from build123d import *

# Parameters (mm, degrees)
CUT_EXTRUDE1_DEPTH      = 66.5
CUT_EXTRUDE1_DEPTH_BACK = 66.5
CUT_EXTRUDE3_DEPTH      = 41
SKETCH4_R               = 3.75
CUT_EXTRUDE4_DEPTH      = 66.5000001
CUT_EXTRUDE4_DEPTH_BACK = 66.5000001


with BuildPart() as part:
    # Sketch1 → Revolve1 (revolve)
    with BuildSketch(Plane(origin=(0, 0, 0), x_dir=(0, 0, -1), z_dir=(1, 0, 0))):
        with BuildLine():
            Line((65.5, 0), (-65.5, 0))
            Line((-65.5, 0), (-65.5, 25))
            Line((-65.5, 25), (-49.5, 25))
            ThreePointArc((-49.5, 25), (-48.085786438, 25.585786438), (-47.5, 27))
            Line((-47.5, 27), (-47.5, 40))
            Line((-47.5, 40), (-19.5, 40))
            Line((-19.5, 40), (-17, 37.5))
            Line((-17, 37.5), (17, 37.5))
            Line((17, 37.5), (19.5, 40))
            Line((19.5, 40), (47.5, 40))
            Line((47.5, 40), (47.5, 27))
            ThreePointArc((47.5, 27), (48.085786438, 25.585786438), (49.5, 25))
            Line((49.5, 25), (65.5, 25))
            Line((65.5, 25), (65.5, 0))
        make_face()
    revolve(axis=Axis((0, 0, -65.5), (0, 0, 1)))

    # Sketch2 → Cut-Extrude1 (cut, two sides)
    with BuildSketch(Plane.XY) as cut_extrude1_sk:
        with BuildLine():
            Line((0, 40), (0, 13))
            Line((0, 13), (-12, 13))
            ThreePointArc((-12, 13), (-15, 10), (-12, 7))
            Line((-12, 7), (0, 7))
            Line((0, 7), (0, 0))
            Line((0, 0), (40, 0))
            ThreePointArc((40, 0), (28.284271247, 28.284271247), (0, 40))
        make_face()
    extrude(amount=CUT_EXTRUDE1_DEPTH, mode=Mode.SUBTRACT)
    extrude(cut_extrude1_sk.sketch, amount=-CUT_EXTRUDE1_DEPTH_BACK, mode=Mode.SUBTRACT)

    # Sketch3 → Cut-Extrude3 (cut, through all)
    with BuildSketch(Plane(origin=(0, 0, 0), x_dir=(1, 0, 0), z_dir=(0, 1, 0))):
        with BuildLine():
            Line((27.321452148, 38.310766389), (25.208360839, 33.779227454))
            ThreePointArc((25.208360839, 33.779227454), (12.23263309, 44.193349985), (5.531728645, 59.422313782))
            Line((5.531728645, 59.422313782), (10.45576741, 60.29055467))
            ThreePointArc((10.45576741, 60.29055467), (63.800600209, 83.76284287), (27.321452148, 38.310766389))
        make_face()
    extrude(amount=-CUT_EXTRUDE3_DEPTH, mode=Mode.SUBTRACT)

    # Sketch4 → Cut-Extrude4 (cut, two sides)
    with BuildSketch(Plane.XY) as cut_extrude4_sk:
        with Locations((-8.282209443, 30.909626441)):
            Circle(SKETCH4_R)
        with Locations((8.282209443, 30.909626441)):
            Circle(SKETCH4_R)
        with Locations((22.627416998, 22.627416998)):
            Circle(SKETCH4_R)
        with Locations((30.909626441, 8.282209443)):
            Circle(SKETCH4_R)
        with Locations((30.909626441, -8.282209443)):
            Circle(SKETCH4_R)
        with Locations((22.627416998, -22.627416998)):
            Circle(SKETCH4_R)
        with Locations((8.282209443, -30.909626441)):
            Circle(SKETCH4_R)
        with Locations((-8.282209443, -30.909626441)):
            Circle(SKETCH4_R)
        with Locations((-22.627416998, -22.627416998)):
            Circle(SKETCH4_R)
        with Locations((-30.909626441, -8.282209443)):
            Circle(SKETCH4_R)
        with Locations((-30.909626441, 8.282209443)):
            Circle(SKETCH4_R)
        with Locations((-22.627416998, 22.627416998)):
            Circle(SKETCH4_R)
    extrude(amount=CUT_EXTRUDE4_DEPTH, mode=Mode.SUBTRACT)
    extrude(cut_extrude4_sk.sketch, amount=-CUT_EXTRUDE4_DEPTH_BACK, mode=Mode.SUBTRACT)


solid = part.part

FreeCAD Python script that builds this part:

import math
import FreeCAD as App
import Part
import Sketcher
from FreeCAD import Vector
Q = App.Units.Quantity

doc = App.newDocument("Part")
params = doc.addObject("Spreadsheet::Sheet", "Params")
for row, (alias, value) in enumerate([
    ("sketch1_radius", "2 mm"),
    ("sketch1_width", "25 mm"),
    ("sketch1_width2", "13 mm"),
    ("sketch1_height", "131 mm"),
    ("sketch1_height2", "16 mm"),
    ("revolution_angle", "360 deg"),
    ("sketch2_radius", "3 mm"),
    ("sketch2_radius2", "40 mm"),
    ("sketch2_width", "12 mm"),
    ("sketch2_height", "27 mm"),
    ("sketch3_radius", "30 mm"),
    ("sketch3_radius2", "35 mm"),
    ("sketch4_diameter", "7.5 mm"),
], start=1):
    params.set(f"A{row}", alias)
    params.set(f"B{row}", "=" + value)
    params.setAlias(f"B{row}", alias)

body = doc.addObject("PartDesign::Body", "Body")

# Sketch on YZ plane
sketch1 = doc.addObject("Sketcher::SketchObject", "Sketch")
body.addObject(sketch1)
sketch1.AttachmentSupport = (doc.YZ_Plane, [""])
sketch1.MapMode = "FlatFace"
sketch1.addGeometry([
    Part.LineSegment(Vector(0, 65.5, 0), Vector(0, -65.5, 0)),  # 0
    Part.LineSegment(Vector(0, -65.5, 0), Vector(25, -65.5, 0)),  # 1
    Part.LineSegment(Vector(25, -65.5, 0), Vector(25, -49.5, 0)),  # 2
    Part.ArcOfCircle(Part.Circle(Vector(27, -49.5, 0), Vector(0, 0, 1), 2), math.radians(90), math.radians(180)),  # 3
    Part.LineSegment(Vector(27, -47.5, 0), Vector(40, -47.5, 0)),  # 4
    Part.LineSegment(Vector(40, -47.5, 0), Vector(40, -19.5, 0)),  # 5
    Part.LineSegment(Vector(40, -19.5, 0), Vector(37.5, -17, 0)),  # 6
    Part.LineSegment(Vector(37.5, -17, 0), Vector(37.5, 17, 0)),  # 7
    Part.LineSegment(Vector(37.5, 17, 0), Vector(40, 19.5, 0)),  # 8
    Part.LineSegment(Vector(40, 19.5, 0), Vector(40, 47.5, 0)),  # 9
    Part.LineSegment(Vector(40, 47.5, 0), Vector(27, 47.5, 0)),  # 10
    Part.ArcOfCircle(Part.Circle(Vector(27, 49.5, 0), Vector(0, 0, 1), 2), math.radians(-180), math.radians(-90)),  # 11
    Part.LineSegment(Vector(25, 49.5, 0), Vector(25, 65.5, 0)),  # 12
    Part.LineSegment(Vector(25, 65.5, 0), Vector(0, 65.5, 0)),  # 13
], False)
sketch1.addConstraint([
    Sketcher.Constraint("Coincident", 0, 2, 1, 1),
    Sketcher.Constraint("Coincident", 1, 2, 2, 1),
    Sketcher.Constraint("Tangent", 2, 2, 3, 2),
    Sketcher.Constraint("Tangent", 3, 1, 4, 1),
    Sketcher.Constraint("Coincident", 4, 2, 5, 1),
    Sketcher.Constraint("Coincident", 5, 2, 6, 1),
    Sketcher.Constraint("Coincident", 6, 2, 7, 1),
    Sketcher.Constraint("Coincident", 7, 2, 8, 1),
    Sketcher.Constraint("Coincident", 8, 2, 9, 1),
    Sketcher.Constraint("Coincident", 9, 2, 10, 1),
    Sketcher.Constraint("Tangent", 10, 2, 11, 2),
    Sketcher.Constraint("Tangent", 11, 1, 12, 1),
    Sketcher.Constraint("Coincident", 12, 2, 13, 1),
    Sketcher.Constraint("Coincident", 13, 2, 0, 1),
    Sketcher.Constraint("Vertical", 0),
    Sketcher.Constraint("Horizontal", 1),
    Sketcher.Constraint("Vertical", 2),
    Sketcher.Constraint("Horizontal", 4),
    Sketcher.Constraint("Vertical", 5),
    Sketcher.Constraint("Vertical", 7),
    Sketcher.Constraint("Vertical", 9),
    Sketcher.Constraint("Horizontal", 10),
    Sketcher.Constraint("Vertical", 12),
    Sketcher.Constraint("Horizontal", 13),
    Sketcher.Constraint("Equal", 3, 11),
    Sketcher.Constraint("Symmetric", 0, 2, 13, 2, -1, 1),
    Sketcher.Constraint("Symmetric", 3, 3, 11, 3, -1),
    Sketcher.Constraint("Symmetric", 5, 2, 8, 2, -1),
    Sketcher.Constraint("Perpendicular", 6, 8),
    Sketcher.Constraint("Equal", 6, 8),
    Sketcher.Constraint("Radius", 3, Q("2 mm")),
    Sketcher.Constraint("DistanceX", 1, 1, 1, 2, Q("25 mm")),
    Sketcher.Constraint("DistanceX", 4, 1, 4, 2, Q("13 mm")),
    Sketcher.Constraint("DistanceY", 0, 2, 0, 1, Q("131 mm")),
    Sketcher.Constraint("DistanceY", 2, 1, 2, 2, Q("16 mm")),
    Sketcher.Constraint("DistanceY", 5, 1, 5, 2, Q("28 mm")),
    Sketcher.Constraint("DistanceY", 7, 1, 7, 2, Q("34 mm")),
])
sketch1.setExpression("Constraints[30]", "Params.sketch1_radius")
sketch1.setExpression("Constraints[31]", "Params.sketch1_width")
sketch1.setExpression("Constraints[32]", "Params.sketch1_width2")
sketch1.setExpression("Constraints[33]", "Params.sketch1_height")
sketch1.setExpression("Constraints[34]", "Params.sketch1_height2")
revolution = doc.addObject("PartDesign::Revolution", "Revolution")
body.addObject(revolution)
revolution.Profile = sketch1
revolution.ReferenceAxis = (sketch1, ["V_Axis"])
revolution.setExpression("Angle", "Params.revolution_angle")

# Sketch on XY plane
sketch2 = doc.addObject("Sketcher::SketchObject", "Sketch001")
body.addObject(sketch2)
sketch2.AttachmentSupport = (doc.XY_Plane, [""])
sketch2.MapMode = "FlatFace"
sketch2.addGeometry([
    Part.LineSegment(Vector(0, 40, 0), Vector(0, 13, 0)),  # 0
    Part.LineSegment(Vector(0, 13, 0), Vector(-12, 13, 0)),  # 1
    Part.ArcOfCircle(Part.Circle(Vector(-12, 10, 0), Vector(0, 0, 1), 3), math.radians(90), math.radians(270)),  # 2
    Part.LineSegment(Vector(-12, 7, 0), Vector(0, 7, 0)),  # 3
    Part.LineSegment(Vector(0, 7, 0), Vector(0, 0, 0)),  # 4
    Part.LineSegment(Vector(0, 0, 0), Vector(40, 0, 0)),  # 5
    Part.ArcOfCircle(Part.Circle(Vector(0, 0, 0), Vector(0, 0, 1), 40), math.radians(0), math.radians(90)),  # 6
], False)
sketch2.addConstraint([
    Sketcher.Constraint("Coincident", 0, 2, 1, 1),
    Sketcher.Constraint("Tangent", 1, 2, 2, 1),
    Sketcher.Constraint("Tangent", 2, 2, 3, 1),
    Sketcher.Constraint("Coincident", 3, 2, 4, 1),
    Sketcher.Constraint("Coincident", 4, 2, 5, 1),
    Sketcher.Constraint("Coincident", 5, 2, 6, 1),
    Sketcher.Constraint("Coincident", 6, 2, 0, 1),
    Sketcher.Constraint("Vertical", 0),
    Sketcher.Constraint("Horizontal", 1),
    Sketcher.Constraint("Horizontal", 3),
    Sketcher.Constraint("Vertical", 4),
    Sketcher.Constraint("Horizontal", 5),
    Sketcher.Constraint("Coincident", 6, 3, -1, 1),
    Sketcher.Constraint("Coincident", 4, 2, -1, 1),
    Sketcher.Constraint("PointOnObject", 0, 2, -2),
    Sketcher.Constraint("Radius", 2, Q("3 mm")),
    Sketcher.Constraint("Radius", 6, Q("40 mm")),
    Sketcher.Constraint("DistanceX", 1, 2, 1, 1, Q("12 mm")),
    Sketcher.Constraint("DistanceY", 0, 2, 0, 1, Q("27 mm")),
])
sketch2.setExpression("Constraints[15]", "Params.sketch2_radius")
sketch2.setExpression("Constraints[16]", "Params.sketch2_radius2")
sketch2.setExpression("Constraints[17]", "Params.sketch2_width")
sketch2.setExpression("Constraints[18]", "Params.sketch2_height")
pocket1 = doc.addObject("PartDesign::Pocket", "Pocket")
body.addObject(pocket1)
pocket1.Profile = sketch2
pocket1.Type = "ThroughAll"
pocket1.Midplane = True

# Sketch on XZ plane
sketch3 = doc.addObject("Sketcher::SketchObject", "Sketch002")
body.addObject(sketch3)
sketch3.AttachmentSupport = (doc.XZ_Plane, [""])
sketch3.MapMode = "FlatFace"
sketch3.addGeometry([
    Part.LineSegment(Vector(25.208361, -33.779227, 0), Vector(27.321452, -38.310766, 0)),
    Part.ArcOfCircle(Part.Circle(Vector(40, -65.5, 0), Vector(0, 0, 1), 30), math.radians(170), math.radians(475)),
    Part.LineSegment(Vector(10.455767, -60.290555, 0), Vector(5.531729, -59.422314, 0)),
    Part.ArcOfCircle(Part.Circle(Vector(40, -65.5, 0), Vector(0, 0, 1), 35), math.radians(115), math.radians(170)),
], False)
sketch3.addConstraint([
    Sketcher.Constraint("Coincident", 0, 2, 1, 2),
    Sketcher.Constraint("Coincident", 1, 1, 2, 1),
    Sketcher.Constraint("Coincident", 2, 2, 3, 2),
    Sketcher.Constraint("Coincident", 3, 1, 0, 1),
    Sketcher.Constraint("Coincident", 3, 3, 1, 3),
    Sketcher.Constraint("Radius", 1, Q("30 mm")),
    Sketcher.Constraint("Radius", 3, Q("35 mm")),
    Sketcher.Constraint("Angle", 0, Q("-65 deg")),
    Sketcher.Constraint("Angle", 2, Q("170 deg")),
    Sketcher.Constraint("DistanceX", -1, 1, 1, 3, Q("40 mm")),
    Sketcher.Constraint("DistanceY", 1, 3, -1, 1, Q("65.5 mm")),
    Sketcher.Constraint("DistanceX", -1, 1, 2, 2, Q("5.531729 mm")),
    Sketcher.Constraint("DistanceX", -1, 1, 3, 1, Q("25.208361 mm")),
])
sketch3.setExpression("Constraints[5]", "Params.sketch3_radius")
sketch3.setExpression("Constraints[6]", "Params.sketch3_radius2")
pocket2 = doc.addObject("PartDesign::Pocket", "Pocket001")
body.addObject(pocket2)
pocket2.Profile = sketch3
pocket2.Type = "ThroughAll"
pocket2.Reversed = True

# Sketch on XY plane
sketch4 = doc.addObject("Sketcher::SketchObject", "Sketch003")
body.addObject(sketch4)
sketch4.AttachmentSupport = (doc.XY_Plane, [""])
sketch4.MapMode = "FlatFace"
sketch4.addGeometry([
    Part.Circle(Vector(-8.282209, 30.909626, 0), Vector(0, 0, 1), 3.75),  # 0
    Part.Circle(Vector(8.282209, 30.909626, 0), Vector(0, 0, 1), 3.75),  # 1
    Part.Circle(Vector(22.627417, 22.627417, 0), Vector(0, 0, 1), 3.75),  # 2
    Part.Circle(Vector(30.909626, 8.282209, 0), Vector(0, 0, 1), 3.75),  # 3
    Part.Circle(Vector(30.909626, -8.282209, 0), Vector(0, 0, 1), 3.75),  # 4
    Part.Circle(Vector(22.627417, -22.627417, 0), Vector(0, 0, 1), 3.75),  # 5
    Part.Circle(Vector(8.282209, -30.909626, 0), Vector(0, 0, 1), 3.75),  # 6
    Part.Circle(Vector(-8.282209, -30.909626, 0), Vector(0, 0, 1), 3.75),  # 7
    Part.Circle(Vector(-22.627417, -22.627417, 0), Vector(0, 0, 1), 3.75),  # 8
    Part.Circle(Vector(-30.909626, -8.282209, 0), Vector(0, 0, 1), 3.75),  # 9
    Part.Circle(Vector(-30.909626, 8.282209, 0), Vector(0, 0, 1), 3.75),  # 10
    Part.Circle(Vector(-22.627417, 22.627417, 0), Vector(0, 0, 1), 3.75),  # 11
], False)
sketch4.addConstraint([
    Sketcher.Constraint("Equal", 0, 1),
    Sketcher.Constraint("Equal", 1, 2),
    Sketcher.Constraint("Equal", 2, 3),
    Sketcher.Constraint("Equal", 3, 4),
    Sketcher.Constraint("Equal", 4, 5),
    Sketcher.Constraint("Equal", 5, 6),
    Sketcher.Constraint("Equal", 6, 7),
    Sketcher.Constraint("Equal", 7, 8),
    Sketcher.Constraint("Equal", 8, 9),
    Sketcher.Constraint("Equal", 9, 10),
    Sketcher.Constraint("Equal", 10, 11),
    Sketcher.Constraint("Symmetric", 0, 3, 6, 3, -1, 1),
    Sketcher.Constraint("Symmetric", 1, 3, 7, 3, -1, 1),
    Sketcher.Constraint("Symmetric", 2, 3, 8, 3, -1, 1),
    Sketcher.Constraint("Symmetric", 3, 3, 9, 3, -1, 1),
    Sketcher.Constraint("Symmetric", 4, 3, 10, 3, -1, 1),
    Sketcher.Constraint("Symmetric", 5, 3, 11, 3, -1, 1),
    Sketcher.Constraint("Symmetric", 0, 3, 1, 3, -2),
    Sketcher.Constraint("Symmetric", 5, 3, 8, 3, -2),
    Sketcher.Constraint("Symmetric", 4, 3, 9, 3, -2),
    Sketcher.Constraint("Diameter", 0, Q("7.5 mm")),
    Sketcher.Constraint("DistanceX", 0, 3, -1, 1, Q("8.282209 mm")),
    Sketcher.Constraint("DistanceY", -1, 1, 3, 3, Q("8.282209 mm")),
    Sketcher.Constraint("DistanceY", 2, 3, 1, 3, Q("8.282209 mm")),
    Sketcher.Constraint("DistanceX", 2, 3, 3, 3, Q("8.282209 mm")),
    Sketcher.Constraint("DistanceY", -1, 1, 0, 3, Q("30.909626 mm")),
    Sketcher.Constraint("DistanceX", -1, 1, 2, 3, Q("22.627417 mm")),
])
sketch4.setExpression("Constraints[20]", "Params.sketch4_diameter")
pocket3 = doc.addObject("PartDesign::Pocket", "Pocket002")
body.addObject(pocket3)
pocket3.Profile = sketch4
pocket3.Type = "ThroughAll"
pocket3.Midplane = True

doc.recompute()
